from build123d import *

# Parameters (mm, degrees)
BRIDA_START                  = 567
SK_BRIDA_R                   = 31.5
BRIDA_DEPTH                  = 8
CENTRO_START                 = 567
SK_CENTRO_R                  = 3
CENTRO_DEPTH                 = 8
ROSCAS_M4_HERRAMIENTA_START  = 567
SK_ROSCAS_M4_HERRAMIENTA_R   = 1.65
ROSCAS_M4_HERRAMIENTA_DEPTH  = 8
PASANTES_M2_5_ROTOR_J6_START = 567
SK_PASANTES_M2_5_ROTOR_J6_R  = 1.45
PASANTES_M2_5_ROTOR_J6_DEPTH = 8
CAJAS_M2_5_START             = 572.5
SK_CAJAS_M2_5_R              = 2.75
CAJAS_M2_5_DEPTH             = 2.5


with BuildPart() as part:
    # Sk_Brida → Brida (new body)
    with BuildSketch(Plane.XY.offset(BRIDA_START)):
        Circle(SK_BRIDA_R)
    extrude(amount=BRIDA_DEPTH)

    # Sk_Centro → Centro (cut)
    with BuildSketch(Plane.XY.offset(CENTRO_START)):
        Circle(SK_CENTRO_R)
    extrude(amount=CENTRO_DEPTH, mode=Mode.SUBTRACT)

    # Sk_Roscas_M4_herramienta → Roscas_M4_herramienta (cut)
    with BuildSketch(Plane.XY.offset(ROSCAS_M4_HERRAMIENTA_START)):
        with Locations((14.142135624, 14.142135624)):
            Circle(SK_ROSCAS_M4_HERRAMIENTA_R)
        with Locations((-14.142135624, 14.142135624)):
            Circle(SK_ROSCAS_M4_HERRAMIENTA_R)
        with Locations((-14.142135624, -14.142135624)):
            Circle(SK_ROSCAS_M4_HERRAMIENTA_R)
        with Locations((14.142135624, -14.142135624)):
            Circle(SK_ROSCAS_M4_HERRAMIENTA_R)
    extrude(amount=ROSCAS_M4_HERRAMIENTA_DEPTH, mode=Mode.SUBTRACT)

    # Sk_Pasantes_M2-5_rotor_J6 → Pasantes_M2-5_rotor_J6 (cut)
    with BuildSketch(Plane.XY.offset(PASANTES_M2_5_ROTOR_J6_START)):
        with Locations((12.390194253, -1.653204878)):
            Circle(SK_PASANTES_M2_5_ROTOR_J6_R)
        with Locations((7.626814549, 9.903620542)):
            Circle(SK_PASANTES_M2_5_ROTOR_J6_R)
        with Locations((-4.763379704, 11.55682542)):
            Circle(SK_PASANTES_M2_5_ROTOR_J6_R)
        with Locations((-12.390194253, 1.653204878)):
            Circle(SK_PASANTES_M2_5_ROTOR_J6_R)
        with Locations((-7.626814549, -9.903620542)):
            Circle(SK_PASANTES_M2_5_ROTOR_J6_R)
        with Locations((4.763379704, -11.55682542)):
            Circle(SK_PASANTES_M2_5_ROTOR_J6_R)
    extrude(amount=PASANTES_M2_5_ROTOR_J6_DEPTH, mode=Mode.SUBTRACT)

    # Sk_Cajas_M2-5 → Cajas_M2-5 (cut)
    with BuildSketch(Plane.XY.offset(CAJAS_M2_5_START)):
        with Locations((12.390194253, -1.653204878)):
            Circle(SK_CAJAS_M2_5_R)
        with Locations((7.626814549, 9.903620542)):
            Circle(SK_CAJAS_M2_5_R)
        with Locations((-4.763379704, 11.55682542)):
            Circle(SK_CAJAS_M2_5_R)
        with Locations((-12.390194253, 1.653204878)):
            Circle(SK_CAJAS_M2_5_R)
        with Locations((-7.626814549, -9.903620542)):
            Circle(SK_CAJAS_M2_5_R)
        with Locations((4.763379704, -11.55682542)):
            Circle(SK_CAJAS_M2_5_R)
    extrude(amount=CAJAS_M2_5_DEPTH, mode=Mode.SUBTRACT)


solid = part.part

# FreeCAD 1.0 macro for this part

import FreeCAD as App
import Part
import Sketcher

doc = App.newDocument("Part")
params = doc.addObject("Spreadsheet::Sheet", "Params")
for row, (alias, value) in enumerate([
    ("sketch1_diameter", "63 mm"),
    ("pad1_length", "8 mm"),
    ("sketch2_diameter", "6 mm"),
    ("pocket1_length", "8 mm"),
    ("sketch3_diameter", "3.3 mm"),
    ("pocket2_length", "8 mm"),
    ("sketch4_diameter", "2.9 mm"),
    ("pocket3_length", "8 mm"),
    ("sketch5_diameter", "5.5 mm"),
    ("pocket4_length", "2.5 mm"),
], start=1):
    params.set(f"A{row}", alias)
    params.set(f"B{row}", "=" + value)
    params.setAlias(f"B{row}", alias)

body = doc.addObject("PartDesign::Body", "Body")

sketch1 = body.newObject("Sketcher::SketchObject", "Sketch")
sketch1.AttachmentSupport = (doc.getObject("XY_Plane"), [""])
sketch1.MapMode = "FlatFace"
sketch1.AttachmentOffset = App.Placement(App.Vector(0, 0, 567), App.Rotation())
sketch1.addGeometry(Part.Circle(App.Vector(0, 0, 0), App.Vector(0, 0, 1), 31.5), False)
sketch1.addConstraint([
    Sketcher.Constraint("Coincident", 0, 3, -1, 1),
    Sketcher.Constraint("Diameter", 0, 63.0),
])
sketch1.setExpression("Constraints[1]", "Params.sketch1_diameter")
pad1 = body.newObject("PartDesign::Pad", "Pad")
pad1.Profile = sketch1
pad1.setExpression("Length", "Params.pad1_length")

sketch2 = body.newObject("Sketcher::SketchObject", "Sketch001")
sketch2.AttachmentSupport = (doc.getObject("XY_Plane"), [""])
sketch2.MapMode = "FlatFace"
sketch2.AttachmentOffset = App.Placement(App.Vector(0, 0, 567), App.Rotation())
sketch2.addGeometry(Part.Circle(App.Vector(0, 0, 0), App.Vector(0, 0, 1), 3), False)
sketch2.addConstraint([
    Sketcher.Constraint("Coincident", 0, 3, -1, 1),
    Sketcher.Constraint("Diameter", 0, 6.0),
])
sketch2.setExpression("Constraints[1]", "Params.sketch2_diameter")
pocket1 = body.newObject("PartDesign::Pocket", "Pocket")
pocket1.Profile = sketch2
pocket1.setExpression("Length", "Params.pocket1_length")
pocket1.Reversed = True

sketch3 = body.newObject("Sketcher::SketchObject", "Sketch002")
sketch3.AttachmentSupport = (doc.getObject("XY_Plane"), [""])
sketch3.MapMode = "FlatFace"
sketch3.AttachmentOffset = App.Placement(App.Vector(0, 0, 567), App.Rotation())
sketch3.addGeometry([
    Part.Circle(App.Vector(14.142136, 14.142136, 0), App.Vector(0, 0, 1), 1.65),
    Part.Circle(App.Vector(-14.142136, 14.142136, 0), App.Vector(0, 0, 1), 1.65),
    Part.Circle(App.Vector(-14.142136, -14.142136, 0), App.Vector(0, 0, 1), 1.65),
    Part.Circle(App.Vector(14.142136, -14.142136, 0), App.Vector(0, 0, 1), 1.65),
], False)
sketch3.addConstraint([
    Sketcher.Constraint("Equal", 0, 1),
    Sketcher.Constraint("Equal", 1, 2),
    Sketcher.Constraint("Equal", 2, 3),
    Sketcher.Constraint("Symmetric", 0, 3, 2, 3, -1, 1),
    Sketcher.Constraint("Symmetric", 1, 3, 3, 3, -1, 1),
    Sketcher.Constraint("Symmetric", 0, 3, 1, 3, -2),
    Sketcher.Constraint("Diameter", 0, 3.3),
    Sketcher.Constraint("DistanceX", 1, 3, 0, 3, 28.284271),
    Sketcher.Constraint("DistanceY", 2, 3, 1, 3, 28.284271),
])
sketch3.setExpression("Constraints[6]", "Params.sketch3_diameter")
pocket2 = body.newObject("PartDesign::Pocket", "Pocket001")
pocket2.Profile = sketch3
pocket2.setExpression("Length", "Params.pocket2_length")
pocket2.Reversed = True

sketch4 = body.newObject("Sketcher::SketchObject", "Sketch003")
sketch4.AttachmentSupport = (doc.getObject("XY_Plane"), [""])
sketch4.MapMode = "FlatFace"
sketch4.AttachmentOffset = App.Placement(App.Vector(0, 0, 567), App.Rotation())
sketch4.addGeometry([
    Part.Circle(App.Vector(12.390194, -1.653205, 0), App.Vector(0, 0, 1), 1.45),
    Part.Circle(App.Vector(7.626815, 9.903621, 0), App.Vector(0, 0, 1), 1.45),
    Part.Circle(App.Vector(-4.76338, 11.556825, 0), App.Vector(0, 0, 1), 1.45),
    Part.Circle(App.Vector(-12.390194, 1.653205, 0), App.Vector(0, 0, 1), 1.45),
    Part.Circle(App.Vector(-7.626815, -9.903621, 0), App.Vector(0, 0, 1), 1.45),
    Part.Circle(App.Vector(4.76338, -11.556825, 0), App.Vector(0, 0, 1), 1.45),
], False)
sketch4.addConstraint([
    Sketcher.Constraint("Equal", 0, 1),
    Sketcher.Constraint("Equal", 1, 2),
    Sketcher.Constraint("Equal", 2, 3),
    Sketcher.Constraint("Equal", 3, 4),
    Sketcher.Constraint("Equal", 4, 5),
    Sketcher.Constraint("Symmetric", 0, 3, 3, 3, -1, 1),
    Sketcher.Constraint("Symmetric", 1, 3, 4, 3, -1, 1),
    Sketcher.Constraint("Symmetric", 2, 3, 5, 3, -1, 1),
    Sketcher.Constraint("Diameter", 0, 2.9),
    Sketcher.Constraint("DistanceY", -1, 1, 1, 3, 9.903621),
    Sketcher.Constraint("DistanceX", 2, 3, -1, 1, 4.76338),
    Sketcher.Constraint("DistanceX", 1, 3, 0, 3, 4.76338),
    Sketcher.Constraint("DistanceY", 0, 3, 2, 3, 13.21003),
    Sketcher.Constraint("DistanceY", 3, 3, 2, 3, 9.903621),
    Sketcher.Constraint("DistanceX", 3, 3, 1, 3, 20.017009),
])
sketch4.setExpression("Constraints[8]", "Params.sketch4_diameter")
pocket3 = body.newObject("PartDesign::Pocket", "Pocket002")
pocket3.Profile = sketch4
pocket3.setExpression("Length", "Params.pocket3_length")
pocket3.Reversed = True

sketch5 = body.newObject("Sketcher::SketchObject", "Sketch004")
sketch5.AttachmentSupport = (doc.getObject("XY_Plane"), [""])
sketch5.MapMode = "FlatFace"
sketch5.AttachmentOffset = App.Placement(App.Vector(0, 0, 572.5), App.Rotation())
sketch5.addGeometry([
    Part.Circle(App.Vector(12.390194, -1.653205, 0), App.Vector(0, 0, 1), 2.75),
    Part.Circle(App.Vector(7.626815, 9.903621, 0), App.Vector(0, 0, 1), 2.75),
    Part.Circle(App.Vector(-4.76338, 11.556825, 0), App.Vector(0, 0, 1), 2.75),
    Part.Circle(App.Vector(-12.390194, 1.653205, 0), App.Vector(0, 0, 1), 2.75),
    Part.Circle(App.Vector(-7.626815, -9.903621, 0), App.Vector(0, 0, 1), 2.75),
    Part.Circle(App.Vector(4.76338, -11.556825, 0), App.Vector(0, 0, 1), 2.75),
], False)
sketch5.addConstraint([
    Sketcher.Constraint("Equal", 0, 1),
    Sketcher.Constraint("Equal", 1, 2),
    Sketcher.Constraint("Equal", 2, 3),
    Sketcher.Constraint("Equal", 3, 4),
    Sketcher.Constraint("Equal", 4, 5),
    Sketcher.Constraint("Symmetric", 0, 3, 3, 3, -1, 1),
    Sketcher.Constraint("Symmetric", 1, 3, 4, 3, -1, 1),
    Sketcher.Constraint("Symmetric", 2, 3, 5, 3, -1, 1),
    Sketcher.Constraint("Diameter", 0, 5.5),
    Sketcher.Constraint("DistanceY", -1, 1, 1, 3, 9.903621),
    Sketcher.Constraint("DistanceX", 2, 3, -1, 1, 4.76338),
    Sketcher.Constraint("DistanceX", 1, 3, 0, 3, 4.76338),
    Sketcher.Constraint("DistanceY", 0, 3, 2, 3, 13.21003),
    Sketcher.Constraint("DistanceY", 3, 3, 2, 3, 9.903621),
    Sketcher.Constraint("DistanceX", 3, 3, 1, 3, 20.017009),
])
sketch5.setExpression("Constraints[8]", "Params.sketch5_diameter")
pocket4 = body.newObject("PartDesign::Pocket", "Pocket003")
pocket4.Profile = sketch5
pocket4.setExpression("Length", "Params.pocket4_length")
pocket4.Reversed = True

doc.recompute()
